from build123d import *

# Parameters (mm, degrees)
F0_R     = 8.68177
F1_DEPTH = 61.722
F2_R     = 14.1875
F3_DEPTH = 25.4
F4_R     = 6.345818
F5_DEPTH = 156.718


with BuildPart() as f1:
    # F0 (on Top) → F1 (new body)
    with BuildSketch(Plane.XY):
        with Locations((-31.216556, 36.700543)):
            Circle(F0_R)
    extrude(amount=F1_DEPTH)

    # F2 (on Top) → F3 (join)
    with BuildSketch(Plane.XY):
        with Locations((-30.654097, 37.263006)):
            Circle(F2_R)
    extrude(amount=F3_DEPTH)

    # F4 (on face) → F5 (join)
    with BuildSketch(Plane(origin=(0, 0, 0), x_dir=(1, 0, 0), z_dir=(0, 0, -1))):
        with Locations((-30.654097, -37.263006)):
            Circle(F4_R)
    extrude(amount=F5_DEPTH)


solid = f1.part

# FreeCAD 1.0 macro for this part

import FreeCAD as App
import Part
import Sketcher

doc = App.newDocument("Part")
params = doc.addObject("Spreadsheet::Sheet", "Params")
for row, (alias, value) in enumerate([
    ("pad1_length", "2.43 in"),
    ("pad2_length", "1 in"),
    ("pad3_length", "6.17 in"),
], start=1):
    params.set(f"A{row}", alias)
    params.set(f"B{row}", "=" + value)
    params.setAlias(f"B{row}", alias)

body = doc.addObject("PartDesign::Body", "Body")

# Sketch on XY plane
sketch1 = body.newObject("Sketcher::SketchObject", "Sketch")
sketch1.AttachmentSupport = (doc.getObject("XY_Plane"), [""])
sketch1.MapMode = "FlatFace"
sketch1.addGeometry(Part.Circle(App.Vector(-31.216556, 36.700543, 0), App.Vector(0, 0, 1), 8.68177), False)
sketch1.addConstraint(Sketcher.Constraint("Diameter", 0, 17.36354))
sketch1.addConstraint(Sketcher.Constraint("DistanceX", 0, 3, -1, 1, 31.216556))
sketch1.addConstraint(Sketcher.Constraint("DistanceY", -1, 1, 0, 3, 36.700543))
pad1 = body.newObject("PartDesign::Pad", "Pad")
pad1.Profile = sketch1
pad1.setExpression("Length", "Params.pad1_length")

# Sketch on XY plane
sketch2 = body.newObject("Sketcher::SketchObject", "Sketch001")
sketch2.AttachmentSupport = (doc.getObject("XY_Plane"), [""])
sketch2.MapMode = "FlatFace"
sketch2.addGeometry(Part.Circle(App.Vector(-30.654097, 37.263006, 0), App.Vector(0, 0, 1), 14.1875), False)
sketch2.addConstraint(Sketcher.Constraint("Diameter", 0, 28.375))
sketch2.addConstraint(Sketcher.Constraint("DistanceX", 0, 3, -1, 1, 30.654097))
sketch2.addConstraint(Sketcher.Constraint("DistanceY", -1, 1, 0, 3, 37.263006))
pad2 = body.newObject("PartDesign::Pad", "Pad001")
pad2.Profile = sketch2
pad2.setExpression("Length", "Params.pad2_length")

# Sketch on XY plane
sketch3 = body.newObject("Sketcher::SketchObject", "Sketch002")
sketch3.AttachmentSupport = (doc.getObject("XY_Plane"), [""])
sketch3.MapMode = "FlatFace"
sketch3.addGeometry(Part.Circle(App.Vector(-30.654097, 37.263006, 0), App.Vector(0, 0, 1), 6.345818), False)
sketch3.addConstraint(Sketcher.Constraint("Diameter", 0, 12.691636))
sketch3.addConstraint(Sketcher.Constraint("DistanceX", 0, 3, -1, 1, 30.654097))
sketch3.addConstraint(Sketcher.Constraint("DistanceY", -1, 1, 0, 3, 37.263006))
pad3 = body.newObject("PartDesign::Pad", "Pad002")
pad3.Profile = sketch3
pad3.setExpression("Length", "Params.pad3_length")
pad3.Reversed = True

doc.recompute()
